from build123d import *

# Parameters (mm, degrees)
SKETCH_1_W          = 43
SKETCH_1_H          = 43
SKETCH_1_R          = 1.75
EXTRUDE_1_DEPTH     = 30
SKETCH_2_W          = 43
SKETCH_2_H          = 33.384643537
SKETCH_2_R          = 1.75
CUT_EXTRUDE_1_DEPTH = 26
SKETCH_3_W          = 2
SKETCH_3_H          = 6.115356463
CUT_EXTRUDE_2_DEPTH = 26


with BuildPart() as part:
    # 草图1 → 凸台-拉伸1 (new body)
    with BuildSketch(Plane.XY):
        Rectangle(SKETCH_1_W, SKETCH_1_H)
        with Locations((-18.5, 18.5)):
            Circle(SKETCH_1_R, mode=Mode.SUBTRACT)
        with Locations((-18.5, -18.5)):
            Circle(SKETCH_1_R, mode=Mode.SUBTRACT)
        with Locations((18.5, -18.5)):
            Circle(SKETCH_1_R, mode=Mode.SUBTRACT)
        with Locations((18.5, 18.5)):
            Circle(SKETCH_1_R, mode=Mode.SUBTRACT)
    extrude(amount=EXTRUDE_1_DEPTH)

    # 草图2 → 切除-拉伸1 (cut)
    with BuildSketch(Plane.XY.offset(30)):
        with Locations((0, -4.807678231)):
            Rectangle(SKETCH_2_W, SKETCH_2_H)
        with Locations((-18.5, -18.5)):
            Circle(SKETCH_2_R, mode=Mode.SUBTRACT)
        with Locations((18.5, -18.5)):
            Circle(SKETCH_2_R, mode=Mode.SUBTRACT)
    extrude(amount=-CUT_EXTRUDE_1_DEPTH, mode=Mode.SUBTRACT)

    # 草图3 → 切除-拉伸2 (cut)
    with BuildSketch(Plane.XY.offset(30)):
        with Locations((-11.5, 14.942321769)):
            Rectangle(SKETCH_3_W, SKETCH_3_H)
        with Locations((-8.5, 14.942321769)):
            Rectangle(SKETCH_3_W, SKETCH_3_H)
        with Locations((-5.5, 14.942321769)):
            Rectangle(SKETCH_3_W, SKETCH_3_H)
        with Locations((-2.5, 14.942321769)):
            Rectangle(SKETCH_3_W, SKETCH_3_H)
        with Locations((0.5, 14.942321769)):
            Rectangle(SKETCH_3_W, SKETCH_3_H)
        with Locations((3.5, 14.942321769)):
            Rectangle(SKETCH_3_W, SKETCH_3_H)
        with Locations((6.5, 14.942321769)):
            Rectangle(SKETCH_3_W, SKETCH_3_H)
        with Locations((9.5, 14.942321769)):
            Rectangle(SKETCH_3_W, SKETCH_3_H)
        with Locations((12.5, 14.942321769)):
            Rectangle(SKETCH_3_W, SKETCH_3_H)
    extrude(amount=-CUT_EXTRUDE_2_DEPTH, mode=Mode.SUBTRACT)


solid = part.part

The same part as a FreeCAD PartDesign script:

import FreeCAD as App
import Part
import Sketcher

doc = App.newDocument("Part")
body = doc.addObject("PartDesign::Body", "Body")

sketch1 = body.newObject("Sketcher::SketchObject", "Sketch")
sketch1.AttachmentSupport = (doc.getObject("XY_Plane"), [""])
sketch1.MapMode = "FlatFace"
sketch1.addGeometry(Part.LineSegment(App.Vector(-21.5, 21.5, 0), App.Vector(-21.5, -21.5, 0)), False)
sketch1.addGeometry(Part.LineSegment(App.Vector(-21.5, -21.5, 0), App.Vector(21.5, -21.5, 0)), False)
sketch1.addGeometry(Part.LineSegment(App.Vector(21.5, -21.5, 0), App.Vector(21.5, 21.5, 0)), False)
sketch1.addGeometry(Part.LineSegment(App.Vector(21.5, 21.5, 0), App.Vector(-21.5, 21.5, 0)), False)
sketch1.addGeometry(Part.Circle(App.Vector(-18.5, -18.5, 0), App.Vector(0, 0, 1), 1.75), False)
sketch1.addGeometry(Part.Circle(App.Vector(18.5, -18.5, 0), App.Vector(0, 0, 1), 1.75), False)
sketch1.addGeometry(Part.Circle(App.Vector(-18.5, 18.5, 0), App.Vector(0, 0, 1), 1.75), False)
sketch1.addGeometry(Part.Circle(App.Vector(18.5, 18.5, 0), App.Vector(0, 0, 1), 1.75), False)
sketch1.addConstraint(Sketcher.Constraint("Coincident", 0, 2, 1, 1))
sketch1.addConstraint(Sketcher.Constraint("Coincident", 1, 2, 2, 1))
sketch1.addConstraint(Sketcher.Constraint("Coincident", 2, 2, 3, 1))
sketch1.addConstraint(Sketcher.Constraint("Coincident", 3, 2, 0, 1))
sketch1.addConstraint(Sketcher.Constraint("Vertical", 0))
sketch1.addConstraint(Sketcher.Constraint("Horizontal", 1))
sketch1.addConstraint(Sketcher.Constraint("Vertical", 2))
sketch1.addConstraint(Sketcher.Constraint("Horizontal", 3))
sketch1.addConstraint(Sketcher.Constraint("Equal", 4, 5))
sketch1.addConstraint(Sketcher.Constraint("Equal", 5, 6))
sketch1.addConstraint(Sketcher.Constraint("Equal", 6, 7))
sketch1.addConstraint(Sketcher.Constraint("Symmetric", 5, 3, 6, 3, -1, 1))
sketch1.addConstraint(Sketcher.Constraint("Symmetric", 4, 3, 7, 3, -1, 1))
sketch1.addConstraint(Sketcher.Constraint("Symmetric", 0, 2, 2, 2, -1, 1))
sketch1.addConstraint(Sketcher.Constraint("Symmetric", 4, 3, 5, 3, -2))
sketch1.addConstraint(Sketcher.Constraint("Equal", 3, 0))
sketch1.addConstraint(Sketcher.Constraint("Diameter", 4, 3.5))
sketch1.addConstraint(Sketcher.Constraint("DistanceX", 1, 1, 1, 2, 43.0))
sketch1.addConstraint(Sketcher.Constraint("DistanceX", 4, 3, 5, 3, 37.0))
sketch1.addConstraint(Sketcher.Constraint("DistanceY", 4, 3, 6, 3, 37.0))
pad1 = body.newObject("PartDesign::Pad", "Pad")
pad1.Profile = sketch1
pad1.Length = 30

sketch2 = body.newObject("Sketcher::SketchObject", "Sketch001")
sketch2.AttachmentSupport = (doc.getObject("XY_Plane"), [""])
sketch2.MapMode = "FlatFace"
sketch2.AttachmentOffset = App.Placement(App.Vector(0, 0, 30), App.Rotation())
sketch2.addGeometry(Part.LineSegment(App.Vector(-21.5, 11.884644, 0), App.Vector(-21.5, -21.5, 0)), False)
sketch2.addGeometry(Part.LineSegment(App.Vector(-21.5, -21.5, 0), App.Vector(21.5, -21.5, 0)), False)
sketch2.addGeometry(Part.LineSegment(App.Vector(21.5, -21.5, 0), App.Vector(21.5, 11.884644, 0)), False)
sketch2.addGeometry(Part.LineSegment(App.Vector(21.5, 11.884644, 0), App.Vector(-21.5, 11.884644, 0)), False)
sketch2.addGeometry(Part.Circle(App.Vector(-18.5, -18.5, 0), App.Vector(0, 0, 1), 1.75), False)
sketch2.addGeometry(Part.Circle(App.Vector(18.5, -18.5, 0), App.Vector(0, 0, 1), 1.75), False)
sketch2.addConstraint(Sketcher.Constraint("Coincident", 0, 2, 1, 1))
sketch2.addConstraint(Sketcher.Constraint("Coincident", 1, 2, 2, 1))
sketch2.addConstraint(Sketcher.Constraint("Coincident", 2, 2, 3, 1))
sketch2.addConstraint(Sketcher.Constraint("Coincident", 3, 2, 0, 1))
sketch2.addConstraint(Sketcher.Constraint("Vertical", 0))
sketch2.addConstraint(Sketcher.Constraint("Horizontal", 1))
sketch2.addConstraint(Sketcher.Constraint("Vertical", 2))
sketch2.addConstraint(Sketcher.Constraint("Horizontal", 3))
sketch2.addConstraint(Sketcher.Constraint("Equal", 4, 5))
sketch2.addConstraint(Sketcher.Constraint("Symmetric", 4, 3, 5, 3, -2))
sketch2.addConstraint(Sketcher.Constraint("Diameter", 4, 3.5))
sketch2.addConstraint(Sketcher.Constraint("DistanceX", 1, 1, 1, 2, 43.0))
sketch2.addConstraint(Sketcher.Constraint("DistanceX", 4, 3, 5, 3, 37.0))
sketch2.addConstraint(Sketcher.Constraint("DistanceX", 0, 2, 4, 3, 3.0))
sketch2.addConstraint(Sketcher.Constraint("DistanceY", 0, 2, 4, 3, 3.0))
sketch2.addConstraint(Sketcher.Constraint("DistanceY", 4, 3, -1, 1, 18.5))
sketch2.addConstraint(Sketcher.Constraint("DistanceY", 0, 2, 0, 1, 33.384644))
pocket1 = body.newObject("PartDesign::Pocket", "Pocket")
pocket1.Profile = sketch2
pocket1.Length = 26

sketch3 = body.newObject("Sketcher::SketchObject", "Sketch002")
sketch3.AttachmentSupport = (doc.getObject("XY_Plane"), [""])
sketch3.MapMode = "FlatFace"
sketch3.AttachmentOffset = App.Placement(App.Vector(0, 0, 30), App.Rotation())
sketch3.addGeometry(Part.LineSegment(App.Vector(-12.5, 18, 0), App.Vector(-12.5, 11.884644, 0)), False)
sketch3.addGeometry(Part.LineSegment(App.Vector(-12.5, 11.884644, 0), App.Vector(-10.5, 11.884644, 0)), False)
sketch3.addGeometry(Part.LineSegment(App.Vector(-10.5, 11.884644, 0), App.Vector(-10.5, 18, 0)), False)
sketch3.addGeometry(Part.LineSegment(App.Vector(-10.5, 18, 0), App.Vector(-12.5, 18, 0)), False)
sketch3.addGeometry(Part.LineSegment(App.Vector(-9.5, 18, 0), App.Vector(-9.5, 11.884644, 0)), False)
sketch3.addGeometry(Part.LineSegment(App.Vector(-9.5, 11.884644, 0), App.Vector(-7.5, 11.884644, 0)), False)
sketch3.addGeometry(Part.LineSegment(App.Vector(-7.5, 11.884644, 0), App.Vector(-7.5, 18, 0)), False)
sketch3.addGeometry(Part.LineSegment(App.Vector(-7.5, 18, 0), App.Vector(-9.5, 18, 0)), False)
sketch3.addGeometry(Part.LineSegment(App.Vector(-6.5, 18, 0), App.Vector(-6.5, 11.884644, 0)), False)
sketch3.addGeometry(Part.LineSegment(App.Vector(-6.5, 11.884644, 0), App.Vector(-4.5, 11.884644, 0)), False)
sketch3.addGeometry(Part.LineSegment(App.Vector(-4.5, 11.884644, 0), App.Vector(-4.5, 18, 0)), False)
sketch3.addGeometry(Part.LineSegment(App.Vector(-4.5, 18, 0), App.Vector(-6.5, 18, 0)), False)
sketch3.addGeometry(Part.LineSegment(App.Vector(-3.5, 18, 0), App.Vector(-3.5, 11.884644, 0)), False)
sketch3.addGeometry(Part.LineSegment(App.Vector(-3.5, 11.884644, 0), App.Vector(-1.5, 11.884644, 0)), False)
sketch3.addGeometry(Part.LineSegment(App.Vector(-1.5, 11.884644, 0), App.Vector(-1.5, 18, 0)), False)
sketch3.addGeometry(Part.LineSegment(App.Vector(-1.5, 18, 0), App.Vector(-3.5, 18, 0)), False)
sketch3.addGeometry(Part.LineSegment(App.Vector(-0.5, 18, 0), App.Vector(-0.5, 11.884644, 0)), False)
sketch3.addGeometry(Part.LineSegment(App.Vector(-0.5, 11.884644, 0), App.Vector(1.5, 11.884644, 0)), False)
sketch3.addGeometry(Part.LineSegment(App.Vector(1.5, 11.884644, 0), App.Vector(1.5, 18, 0)), False)
sketch3.addGeometry(Part.LineSegment(App.Vector(1.5, 18, 0), App.Vector(-0.5, 18, 0)), False)
sketch3.addGeometry(Part.LineSegment(App.Vector(2.5, 18, 0), App.Vector(2.5, 11.884644, 0)), False)
sketch3.addGeometry(Part.LineSegment(App.Vector(2.5, 11.884644, 0), App.Vector(4.5, 11.884644, 0)), False)
sketch3.addGeometry(Part.LineSegment(App.Vector(4.5, 11.884644, 0), App.Vector(4.5, 18, 0)), False)
sketch3.addGeometry(Part.LineSegment(App.Vector(4.5, 18, 0), App.Vector(2.5, 18, 0)), False)
sketch3.addGeometry(Part.LineSegment(App.Vector(5.5, 18, 0), App.Vector(5.5, 11.884644, 0)), False)
sketch3.addGeometry(Part.LineSegment(App.Vector(5.5, 11.884644, 0), App.Vector(7.5, 11.884644, 0)), False)
sketch3.addGeometry(Part.LineSegment(App.Vector(7.5, 11.884644, 0), App.Vector(7.5, 18, 0)), False)
sketch3.addGeometry(Part.LineSegment(App.Vector(7.5, 18, 0), App.Vector(5.5, 18, 0)), False)
sketch3.addGeometry(Part.LineSegment(App.Vector(8.5, 18, 0), App.Vector(8.5, 11.884644, 0)), False)
sketch3.addGeometry(Part.LineSegment(App.Vector(8.5, 11.884644, 0), App.Vector(10.5, 11.884644, 0)), False)
sketch3.addGeometry(Part.LineSegment(App.Vector(10.5, 11.884644, 0), App.Vector(10.5, 18, 0)), False)
sketch3.addGeometry(Part.LineSegment(App.Vector(10.5, 18, 0), App.Vector(8.5, 18, 0)), False)
sketch3.addGeometry(Part.LineSegment(App.Vector(11.5, 18, 0), App.Vector(11.5, 11.884644, 0)), False)
sketch3.addGeometry(Part.LineSegment(App.Vector(11.5, 11.884644, 0), App.Vector(13.5, 11.884644, 0)), False)
sketch3.addGeometry(Part.LineSegment(App.Vector(13.5, 11.884644, 0), App.Vector(13.5, 18, 0)), False)
sketch3.addGeometry(Part.LineSegment(App.Vector(13.5, 18, 0), App.Vector(11.5, 18, 0)), False)
sketch3.addConstraint(Sketcher.Constraint("Coincident", 0, 2, 1, 1))
sketch3.addConstraint(Sketcher.Constraint("Coincident", 1, 2, 2, 1))
sketch3.addConstraint(Sketcher.Constraint("Coincident", 2, 2, 3, 1))
sketch3.addConstraint(Sketcher.Constraint("Coincident", 3, 2, 0, 1))
sketch3.addConstraint(Sketcher.Constraint("Coincident", 4, 2, 5, 1))
sketch3.addConstraint(Sketcher.Constraint("Coincident", 5, 2, 6, 1))
sketch3.addConstraint(Sketcher.Constraint("Coincident", 6, 2, 7, 1))
sketch3.addConstraint(Sketcher.Constraint("Coincident", 7, 2, 4, 1))
sketch3.addConstraint(Sketcher.Constraint("Coincident", 8, 2, 9, 1))
sketch3.addConstraint(Sketcher.Constraint("Coincident", 9, 2, 10, 1))
sketch3.addConstraint(Sketcher.Constraint("Coincident", 10, 2, 11, 1))
sketch3.addConstraint(Sketcher.Constraint("Coincident", 11, 2, 8, 1))
sketch3.addConstraint(Sketcher.Constraint("Coincident", 12, 2, 13, 1))
sketch3.addConstraint(Sketcher.Constraint("Coincident", 13, 2, 14, 1))
sketch3.addConstraint(Sketcher.Constraint("Coincident", 14, 2, 15, 1))
sketch3.addConstraint(Sketcher.Constraint("Coincident", 15, 2, 12, 1))
sketch3.addConstraint(Sketcher.Constraint("Coincident", 16, 2, 17, 1))
sketch3.addConstraint(Sketcher.Constraint("Coincident", 17, 2, 18, 1))
sketch3.addConstraint(Sketcher.Constraint("Coincident", 18, 2, 19, 1))
sketch3.addConstraint(Sketcher.Constraint("Coincident", 19, 2, 16, 1))
sketch3.addConstraint(Sketcher.Constraint("Coincident", 20, 2, 21, 1))
sketch3.addConstraint(Sketcher.Constraint("Coincident", 21, 2, 22, 1))
sketch3.addConstraint(Sketcher.Constraint("Coincident", 22, 2, 23, 1))
sketch3.addConstraint(Sketcher.Constraint("Coincident", 23, 2, 20, 1))
sketch3.addConstraint(Sketcher.Constraint("Coincident", 24, 2, 25, 1))
sketch3.addConstraint(Sketcher.Constraint("Coincident", 25, 2, 26, 1))
sketch3.addConstraint(Sketcher.Constraint("Coincident", 26, 2, 27, 1))
sketch3.addConstraint(Sketcher.Constraint("Coincident", 27, 2, 24, 1))
sketch3.addConstraint(Sketcher.Constraint("Coincident", 28, 2, 29, 1))
sketch3.addConstraint(Sketcher.Constraint("Coincident", 29, 2, 30, 1))
sketch3.addConstraint(Sketcher.Constraint("Coincident", 30, 2, 31, 1))
sketch3.addConstraint(Sketcher.Constraint("Coincident", 31, 2, 28, 1))
sketch3.addConstraint(Sketcher.Constraint("Coincident", 32, 2, 33, 1))
sketch3.addConstraint(Sketcher.Constraint("Coincident", 33, 2, 34, 1))
sketch3.addConstraint(Sketcher.Constraint("Coincident", 34, 2, 35, 1))
sketch3.addConstraint(Sketcher.Constraint("Coincident", 35, 2, 32, 1))
sketch3.addConstraint(Sketcher.Constraint("Vertical", 0))
sketch3.addConstraint(Sketcher.Constraint("Horizontal", 1))
sketch3.addConstraint(Sketcher.Constraint("Vertical", 2))
sketch3.addConstraint(Sketcher.Constraint("Horizontal", 3))
sketch3.addConstraint(Sketcher.Constraint("Vertical", 4))
sketch3.addConstraint(Sketcher.Constraint("Horizontal", 5))
sketch3.addConstraint(Sketcher.Constraint("Vertical", 6))
sketch3.addConstraint(Sketcher.Constraint("Horizontal", 7))
sketch3.addConstraint(Sketcher.Constraint("Vertical", 8))
sketch3.addConstraint(Sketcher.Constraint("Horizontal", 9))
sketch3.addConstraint(Sketcher.Constraint("Vertical", 10))
sketch3.addConstraint(Sketcher.Constraint("Horizontal", 11))
sketch3.addConstraint(Sketcher.Constraint("Vertical", 12))
sketch3.addConstraint(Sketcher.Constraint("Horizontal", 13))
sketch3.addConstraint(Sketcher.Constraint("Vertical", 14))
sketch3.addConstraint(Sketcher.Constraint("Horizontal", 15))
sketch3.addConstraint(Sketcher.Constraint("Vertical", 16))
sketch3.addConstraint(Sketcher.Constraint("Horizontal", 17))
sketch3.addConstraint(Sketcher.Constraint("Vertical", 18))
sketch3.addConstraint(Sketcher.Constraint("Horizontal", 19))
sketch3.addConstraint(Sketcher.Constraint("Vertical", 20))
sketch3.addConstraint(Sketcher.Constraint("Horizontal", 21))
sketch3.addConstraint(Sketcher.Constraint("Vertical", 22))
sketch3.addConstraint(Sketcher.Constraint("Horizontal", 23))
sketch3.addConstraint(Sketcher.Constraint("Vertical", 24))
sketch3.addConstraint(Sketcher.Constraint("Horizontal", 25))
sketch3.addConstraint(Sketcher.Constraint("Vertical", 26))
sketch3.addConstraint(Sketcher.Constraint("Horizontal", 27))
sketch3.addConstraint(Sketcher.Constraint("Vertical", 28))
sketch3.addConstraint(Sketcher.Constraint("Horizontal", 29))
sketch3.addConstraint(Sketcher.Constraint("Vertical", 30))
sketch3.addConstraint(Sketcher.Constraint("Horizontal", 31))
sketch3.addConstraint(Sketcher.Constraint("Vertical", 32))
sketch3.addConstraint(Sketcher.Constraint("Horizontal", 33))
sketch3.addConstraint(Sketcher.Constraint("Vertical", 34))
sketch3.addConstraint(Sketcher.Constraint("Horizontal", 35))
sketch3.addConstraint(Sketcher.Constraint("Symmetric", 13, 2, 17, 2, -2))
sketch3.addConstraint(Sketcher.Constraint("Symmetric", 9, 2, 21, 2, -2))
sketch3.addConstraint(Sketcher.Constraint("Symmetric", 5, 2, 25, 2, -2))
sketch3.addConstraint(Sketcher.Constraint("Symmetric", 1, 2, 29, 2, -2))
sketch3.addConstraint(Sketcher.Constraint("Horizontal", 1, 2, 4, 2))
sketch3.addConstraint(Sketcher.Constraint("Horizontal", 3, 2, 6, 2))
sketch3.addConstraint(Sketcher.Constraint("Horizontal", 5, 2, 8, 2))
sketch3.addConstraint(Sketcher.Constraint("Horizontal", 7, 2, 10, 2))
sketch3.addConstraint(Sketcher.Constraint("Horizontal", 9, 2, 12, 2))
sketch3.addConstraint(Sketcher.Constraint("Horizontal", 11, 2, 14, 2))
sketch3.addConstraint(Sketcher.Constraint("Horizontal", 15, 2, 18, 2))
sketch3.addConstraint(Sketcher.Constraint("Horizontal", 19, 2, 22, 2))
sketch3.addConstraint(Sketcher.Constraint("Horizontal", 23, 2, 26, 2))
sketch3.addConstraint(Sketcher.Constraint("Horizontal", 27, 2, 30, 2))
sketch3.addConstraint(Sketcher.Constraint("Horizontal", 29, 2, 32, 2))
sketch3.addConstraint(Sketcher.Constraint("Horizontal", 31, 2, 34, 2))
sketch3.addConstraint(Sketcher.Constraint("Equal", 3, 5))
sketch3.addConstraint(Sketcher.Constraint("Equal", 7, 9))
sketch3.addConstraint(Sketcher.Constraint("Equal", 11, 13))
sketch3.addConstraint(Sketcher.Constraint("Equal", 15, 17))
sketch3.addConstraint(Sketcher.Constraint("Equal", 19, 21))
sketch3.addConstraint(Sketcher.Constraint("Equal", 23, 25))
sketch3.addConstraint(Sketcher.Constraint("Equal", 27, 29))
sketch3.addConstraint(Sketcher.Constraint("Equal", 31, 33))
sketch3.addConstraint(Sketcher.Constraint("DistanceX", 1, 1, 1, 2, 2.0))
sketch3.addConstraint(Sketcher.Constraint("DistanceY", -1, 1, 2, 2, 18.0))
sketch3.addConstraint(Sketcher.Constraint("DistanceX", 1, 2, 4, 2, 1.0))
sketch3.addConstraint(Sketcher.Constraint("DistanceX", 5, 2, 8, 2, 1.0))
sketch3.addConstraint(Sketcher.Constraint("DistanceX", 9, 2, 12, 2, 1.0))
sketch3.addConstraint(Sketcher.Constraint("DistanceX", 13, 2, 16, 2, 1.0))
sketch3.addConstraint(Sketcher.Constraint("DistanceX", 29, 2, 32, 2, 1.0))
sketch3.addConstraint(Sketcher.Constraint("DistanceY", 0, 2, 0, 1, 6.115356))
pocket2 = body.newObject("PartDesign::Pocket", "Pocket001")
pocket2.Profile = sketch3
pocket2.Length = 26

doc.recompute()
